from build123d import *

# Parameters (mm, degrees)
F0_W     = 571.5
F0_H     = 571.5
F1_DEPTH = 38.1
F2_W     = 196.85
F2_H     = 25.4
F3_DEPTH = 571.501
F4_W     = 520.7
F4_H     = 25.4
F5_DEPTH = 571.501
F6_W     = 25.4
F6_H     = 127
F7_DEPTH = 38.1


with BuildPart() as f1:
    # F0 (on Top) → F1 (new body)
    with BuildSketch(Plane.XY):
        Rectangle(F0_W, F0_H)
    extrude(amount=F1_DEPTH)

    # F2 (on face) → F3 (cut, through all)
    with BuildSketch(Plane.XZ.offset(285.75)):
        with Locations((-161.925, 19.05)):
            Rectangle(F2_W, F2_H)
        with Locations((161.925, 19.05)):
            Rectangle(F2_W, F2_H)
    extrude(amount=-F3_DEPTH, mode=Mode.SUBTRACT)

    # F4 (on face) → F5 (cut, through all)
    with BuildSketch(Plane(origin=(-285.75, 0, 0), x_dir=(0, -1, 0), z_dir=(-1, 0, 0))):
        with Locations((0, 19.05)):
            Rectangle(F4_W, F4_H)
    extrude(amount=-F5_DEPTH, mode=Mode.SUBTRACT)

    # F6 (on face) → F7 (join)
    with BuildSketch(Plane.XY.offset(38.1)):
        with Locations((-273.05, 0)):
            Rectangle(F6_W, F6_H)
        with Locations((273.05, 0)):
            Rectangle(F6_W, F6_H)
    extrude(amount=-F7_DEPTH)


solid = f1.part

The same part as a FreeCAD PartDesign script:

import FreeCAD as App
import Part
import Sketcher

V = App.Vector
Q = App.Units.Quantity

doc = App.newDocument("Part")
body = doc.addObject("PartDesign::Body", "Body")

# Sketch on XY plane
sketch1 = body.newObject("Sketcher::SketchObject", "Sketch")
sketch1.AttachmentSupport = (doc.getObject("XY_Plane"), [""])
sketch1.MapMode = "FlatFace"
sketch1.addGeometry([
    Part.LineSegment(V(-285.75, 285.75, 0), V(-285.75, -285.75, 0)),
    Part.LineSegment(V(-285.75, -285.75, 0), V(285.75, -285.75, 0)),
    Part.LineSegment(V(285.75, -285.75, 0), V(285.75, 285.75, 0)),
    Part.LineSegment(V(285.75, 285.75, 0), V(-285.75, 285.75, 0)),
], False)
sketch1.addConstraint([
    Sketcher.Constraint("Coincident", 0, 2, 1, 1),
    Sketcher.Constraint("Coincident", 1, 2, 2, 1),
    Sketcher.Constraint("Coincident", 2, 2, 3, 1),
    Sketcher.Constraint("Coincident", 3, 2, 0, 1),
    Sketcher.Constraint("Vertical", 0),
    Sketcher.Constraint("Horizontal", 1),
    Sketcher.Constraint("Vertical", 2),
    Sketcher.Constraint("Horizontal", 3),
    Sketcher.Constraint("Symmetric", 0, 2, 2, 2, -1, 1),
    Sketcher.Constraint("Equal", 3, 0),
    Sketcher.Constraint("DistanceX", 1, 1, 1, 2, Q("22.5 in")),
])
pad1 = body.newObject("PartDesign::Pad", "Pad")
pad1.Profile = sketch1
pad1.Length = Q("1.5 in")

# Sketch on XZ plane
sketch2 = body.newObject("Sketcher::SketchObject", "Sketch001")
sketch2.AttachmentSupport = (doc.getObject("XZ_Plane"), [""])
sketch2.MapMode = "FlatFace"
sketch2.AttachmentOffset = App.Placement(V(0, 0, 11.25 * 25.4), App.Rotation())
sketch2.addGeometry([
    Part.LineSegment(V(-260.35, 31.75, 0), V(-260.35, 6.35, 0)),  # 0
    Part.LineSegment(V(-260.35, 6.35, 0), V(-63.5, 6.35, 0)),  # 1
    Part.LineSegment(V(-63.5, 6.35, 0), V(-63.5, 31.75, 0)),  # 2
    Part.LineSegment(V(-63.5, 31.75, 0), V(-260.35, 31.75, 0)),  # 3
    Part.LineSegment(V(63.5, 31.75, 0), V(63.5, 6.35, 0)),  # 4
    Part.LineSegment(V(63.5, 6.35, 0), V(260.35, 6.35, 0)),  # 5
    Part.LineSegment(V(260.35, 6.35, 0), V(260.35, 31.75, 0)),  # 6
    Part.LineSegment(V(260.35, 31.75, 0), V(63.5, 31.75, 0)),  # 7
], False)
sketch2.addConstraint([
    Sketcher.Constraint("Coincident", 0, 2, 1, 1),
    Sketcher.Constraint("Coincident", 1, 2, 2, 1),
    Sketcher.Constraint("Coincident", 2, 2, 3, 1),
    Sketcher.Constraint("Coincident", 3, 2, 0, 1),
    Sketcher.Constraint("Coincident", 4, 2, 5, 1),
    Sketcher.Constraint("Coincident", 5, 2, 6, 1),
    Sketcher.Constraint("Coincident", 6, 2, 7, 1),
    Sketcher.Constraint("Coincident", 7, 2, 4, 1),
    Sketcher.Constraint("Vertical", 0),
    Sketcher.Constraint("Horizontal", 1),
    Sketcher.Constraint("Vertical", 2),
    Sketcher.Constraint("Horizontal", 3),
    Sketcher.Constraint("Vertical", 4),
    Sketcher.Constraint("Horizontal", 5),
    Sketcher.Constraint("Vertical", 6),
    Sketcher.Constraint("Horizontal", 7),
    Sketcher.Constraint("Symmetric", 1, 2, 4, 2, -2),
    Sketcher.Constraint("Symmetric", 3, 2, 6, 2, -2),
    Sketcher.Constraint("DistanceY", 0, 2, 0, 1, Q("1 in")),
    Sketcher.Constraint("DistanceX", 1, 2, 4, 2, Q("5 in")),
    Sketcher.Constraint("DistanceX", 1, 1, 1, 2, Q("7.75 in")),
    Sketcher.Constraint("DistanceY", -1, 1, 0, 2, Q("0.25 in")),
])
pocket1 = body.newObject("PartDesign::Pocket", "Pocket")
pocket1.Profile = sketch2
pocket1.Type = "ThroughAll"

# Sketch on YZ plane
sketch3 = body.newObject("Sketcher::SketchObject", "Sketch002")
sketch3.AttachmentSupport = (doc.getObject("YZ_Plane"), [""])
sketch3.MapMode = "FlatFace"
sketch3.AttachmentOffset = App.Placement(V(0, 0, -11.25 * 25.4), App.Rotation())
sketch3.addGeometry([
    Part.LineSegment(V(260.35, 31.75, 0), V(260.35, 6.35, 0)),
    Part.LineSegment(V(260.35, 6.35, 0), V(-260.35, 6.35, 0)),
    Part.LineSegment(V(-260.35, 6.35, 0), V(-260.35, 31.75, 0)),
    Part.LineSegment(V(-260.35, 31.75, 0), V(260.35, 31.75, 0)),
], False)
sketch3.addConstraint([
    Sketcher.Constraint("Coincident", 0, 2, 1, 1),
    Sketcher.Constraint("Coincident", 1, 2, 2, 1),
    Sketcher.Constraint("Coincident", 2, 2, 3, 1),
    Sketcher.Constraint("Coincident", 3, 2, 0, 1),
    Sketcher.Constraint("Vertical", 0),
    Sketcher.Constraint("Horizontal", 1),
    Sketcher.Constraint("Vertical", 2),
    Sketcher.Constraint("Horizontal", 3),
    Sketcher.Constraint("DistanceY", 0, 2, 0, 1, Q("1 in")),
    Sketcher.Constraint("DistanceX", 1, 2, 1, 1, Q("20.5 in")),
    Sketcher.Constraint("DistanceX", -1, 1, 0, 2, Q("10.25 in")),
    Sketcher.Constraint("DistanceY", -1, 1, 0, 2, Q("0.25 in")),
])
pocket2 = body.newObject("PartDesign::Pocket", "Pocket001")
pocket2.Profile = sketch3
pocket2.Type = "ThroughAll"
pocket2.Reversed = True

# Sketch on XY plane
sketch4 = body.newObject("Sketcher::SketchObject", "Sketch003")
sketch4.AttachmentSupport = (doc.getObject("XY_Plane"), [""])
sketch4.MapMode = "FlatFace"
sketch4.AttachmentOffset = App.Placement(V(0, 0, 1.5 * 25.4), App.Rotation())
sketch4.addGeometry([
    Part.LineSegment(V(-285.75, 63.5, 0), V(-285.75, -63.5, 0)),  # 0
    Part.LineSegment(V(-285.75, -63.5, 0), V(-260.35, -63.5, 0)),  # 1
    Part.LineSegment(V(-260.35, -63.5, 0), V(-260.35, 63.5, 0)),  # 2
    Part.LineSegment(V(-260.35, 63.5, 0), V(-285.75, 63.5, 0)),  # 3
    Part.LineSegment(V(260.35, 63.5, 0), V(260.35, -63.5, 0)),  # 4
    Part.LineSegment(V(260.35, -63.5, 0), V(285.75, -63.5, 0)),  # 5
    Part.LineSegment(V(285.75, -63.5, 0), V(285.75, 63.5, 0)),  # 6
    Part.LineSegment(V(285.75, 63.5, 0), V(260.35, 63.5, 0)),  # 7
], False)
sketch4.addConstraint([
    Sketcher.Constraint("Coincident", 0, 2, 1, 1),
    Sketcher.Constraint("Coincident", 1, 2, 2, 1),
    Sketcher.Constraint("Coincident", 2, 2, 3, 1),
    Sketcher.Constraint("Coincident", 3, 2, 0, 1),
    Sketcher.Constraint("Coincident", 4, 2, 5, 1),
    Sketcher.Constraint("Coincident", 5, 2, 6, 1),
    Sketcher.Constraint("Coincident", 6, 2, 7, 1),
    Sketcher.Constraint("Coincident", 7, 2, 4, 1),
    Sketcher.Constraint("Vertical", 0),
    Sketcher.Constraint("Horizontal", 1),
    Sketcher.Constraint("Vertical", 2),
    Sketcher.Constraint("Horizontal", 3),
    Sketcher.Constraint("Vertical", 4),
    Sketcher.Constraint("Horizontal", 5),
    Sketcher.Constraint("Vertical", 6),
    Sketcher.Constraint("Horizontal", 7),
    Sketcher.Constraint("Symmetric", 2, 2, 4, 2, -1, 1),
    Sketcher.Constraint("Symmetric", 0, 2, 6, 2, -1, 1),
    Sketcher.Constraint("Horizontal", 1, 2, 4, 2),
    Sketcher.Constraint("DistanceX", 1, 1, 1, 2, Q("1 in")),
    Sketcher.Constraint("DistanceY", 0, 2, 0, 1, Q("5 in")),
    Sketcher.Constraint("DistanceX", 1, 2, 4, 2, Q("20.5 in")),
])
pad2 = body.newObject("PartDesign::Pad", "Pad001")
pad2.Profile = sketch4
pad2.Length = Q("1.5 in")
pad2.Reversed = True

doc.recompute()
